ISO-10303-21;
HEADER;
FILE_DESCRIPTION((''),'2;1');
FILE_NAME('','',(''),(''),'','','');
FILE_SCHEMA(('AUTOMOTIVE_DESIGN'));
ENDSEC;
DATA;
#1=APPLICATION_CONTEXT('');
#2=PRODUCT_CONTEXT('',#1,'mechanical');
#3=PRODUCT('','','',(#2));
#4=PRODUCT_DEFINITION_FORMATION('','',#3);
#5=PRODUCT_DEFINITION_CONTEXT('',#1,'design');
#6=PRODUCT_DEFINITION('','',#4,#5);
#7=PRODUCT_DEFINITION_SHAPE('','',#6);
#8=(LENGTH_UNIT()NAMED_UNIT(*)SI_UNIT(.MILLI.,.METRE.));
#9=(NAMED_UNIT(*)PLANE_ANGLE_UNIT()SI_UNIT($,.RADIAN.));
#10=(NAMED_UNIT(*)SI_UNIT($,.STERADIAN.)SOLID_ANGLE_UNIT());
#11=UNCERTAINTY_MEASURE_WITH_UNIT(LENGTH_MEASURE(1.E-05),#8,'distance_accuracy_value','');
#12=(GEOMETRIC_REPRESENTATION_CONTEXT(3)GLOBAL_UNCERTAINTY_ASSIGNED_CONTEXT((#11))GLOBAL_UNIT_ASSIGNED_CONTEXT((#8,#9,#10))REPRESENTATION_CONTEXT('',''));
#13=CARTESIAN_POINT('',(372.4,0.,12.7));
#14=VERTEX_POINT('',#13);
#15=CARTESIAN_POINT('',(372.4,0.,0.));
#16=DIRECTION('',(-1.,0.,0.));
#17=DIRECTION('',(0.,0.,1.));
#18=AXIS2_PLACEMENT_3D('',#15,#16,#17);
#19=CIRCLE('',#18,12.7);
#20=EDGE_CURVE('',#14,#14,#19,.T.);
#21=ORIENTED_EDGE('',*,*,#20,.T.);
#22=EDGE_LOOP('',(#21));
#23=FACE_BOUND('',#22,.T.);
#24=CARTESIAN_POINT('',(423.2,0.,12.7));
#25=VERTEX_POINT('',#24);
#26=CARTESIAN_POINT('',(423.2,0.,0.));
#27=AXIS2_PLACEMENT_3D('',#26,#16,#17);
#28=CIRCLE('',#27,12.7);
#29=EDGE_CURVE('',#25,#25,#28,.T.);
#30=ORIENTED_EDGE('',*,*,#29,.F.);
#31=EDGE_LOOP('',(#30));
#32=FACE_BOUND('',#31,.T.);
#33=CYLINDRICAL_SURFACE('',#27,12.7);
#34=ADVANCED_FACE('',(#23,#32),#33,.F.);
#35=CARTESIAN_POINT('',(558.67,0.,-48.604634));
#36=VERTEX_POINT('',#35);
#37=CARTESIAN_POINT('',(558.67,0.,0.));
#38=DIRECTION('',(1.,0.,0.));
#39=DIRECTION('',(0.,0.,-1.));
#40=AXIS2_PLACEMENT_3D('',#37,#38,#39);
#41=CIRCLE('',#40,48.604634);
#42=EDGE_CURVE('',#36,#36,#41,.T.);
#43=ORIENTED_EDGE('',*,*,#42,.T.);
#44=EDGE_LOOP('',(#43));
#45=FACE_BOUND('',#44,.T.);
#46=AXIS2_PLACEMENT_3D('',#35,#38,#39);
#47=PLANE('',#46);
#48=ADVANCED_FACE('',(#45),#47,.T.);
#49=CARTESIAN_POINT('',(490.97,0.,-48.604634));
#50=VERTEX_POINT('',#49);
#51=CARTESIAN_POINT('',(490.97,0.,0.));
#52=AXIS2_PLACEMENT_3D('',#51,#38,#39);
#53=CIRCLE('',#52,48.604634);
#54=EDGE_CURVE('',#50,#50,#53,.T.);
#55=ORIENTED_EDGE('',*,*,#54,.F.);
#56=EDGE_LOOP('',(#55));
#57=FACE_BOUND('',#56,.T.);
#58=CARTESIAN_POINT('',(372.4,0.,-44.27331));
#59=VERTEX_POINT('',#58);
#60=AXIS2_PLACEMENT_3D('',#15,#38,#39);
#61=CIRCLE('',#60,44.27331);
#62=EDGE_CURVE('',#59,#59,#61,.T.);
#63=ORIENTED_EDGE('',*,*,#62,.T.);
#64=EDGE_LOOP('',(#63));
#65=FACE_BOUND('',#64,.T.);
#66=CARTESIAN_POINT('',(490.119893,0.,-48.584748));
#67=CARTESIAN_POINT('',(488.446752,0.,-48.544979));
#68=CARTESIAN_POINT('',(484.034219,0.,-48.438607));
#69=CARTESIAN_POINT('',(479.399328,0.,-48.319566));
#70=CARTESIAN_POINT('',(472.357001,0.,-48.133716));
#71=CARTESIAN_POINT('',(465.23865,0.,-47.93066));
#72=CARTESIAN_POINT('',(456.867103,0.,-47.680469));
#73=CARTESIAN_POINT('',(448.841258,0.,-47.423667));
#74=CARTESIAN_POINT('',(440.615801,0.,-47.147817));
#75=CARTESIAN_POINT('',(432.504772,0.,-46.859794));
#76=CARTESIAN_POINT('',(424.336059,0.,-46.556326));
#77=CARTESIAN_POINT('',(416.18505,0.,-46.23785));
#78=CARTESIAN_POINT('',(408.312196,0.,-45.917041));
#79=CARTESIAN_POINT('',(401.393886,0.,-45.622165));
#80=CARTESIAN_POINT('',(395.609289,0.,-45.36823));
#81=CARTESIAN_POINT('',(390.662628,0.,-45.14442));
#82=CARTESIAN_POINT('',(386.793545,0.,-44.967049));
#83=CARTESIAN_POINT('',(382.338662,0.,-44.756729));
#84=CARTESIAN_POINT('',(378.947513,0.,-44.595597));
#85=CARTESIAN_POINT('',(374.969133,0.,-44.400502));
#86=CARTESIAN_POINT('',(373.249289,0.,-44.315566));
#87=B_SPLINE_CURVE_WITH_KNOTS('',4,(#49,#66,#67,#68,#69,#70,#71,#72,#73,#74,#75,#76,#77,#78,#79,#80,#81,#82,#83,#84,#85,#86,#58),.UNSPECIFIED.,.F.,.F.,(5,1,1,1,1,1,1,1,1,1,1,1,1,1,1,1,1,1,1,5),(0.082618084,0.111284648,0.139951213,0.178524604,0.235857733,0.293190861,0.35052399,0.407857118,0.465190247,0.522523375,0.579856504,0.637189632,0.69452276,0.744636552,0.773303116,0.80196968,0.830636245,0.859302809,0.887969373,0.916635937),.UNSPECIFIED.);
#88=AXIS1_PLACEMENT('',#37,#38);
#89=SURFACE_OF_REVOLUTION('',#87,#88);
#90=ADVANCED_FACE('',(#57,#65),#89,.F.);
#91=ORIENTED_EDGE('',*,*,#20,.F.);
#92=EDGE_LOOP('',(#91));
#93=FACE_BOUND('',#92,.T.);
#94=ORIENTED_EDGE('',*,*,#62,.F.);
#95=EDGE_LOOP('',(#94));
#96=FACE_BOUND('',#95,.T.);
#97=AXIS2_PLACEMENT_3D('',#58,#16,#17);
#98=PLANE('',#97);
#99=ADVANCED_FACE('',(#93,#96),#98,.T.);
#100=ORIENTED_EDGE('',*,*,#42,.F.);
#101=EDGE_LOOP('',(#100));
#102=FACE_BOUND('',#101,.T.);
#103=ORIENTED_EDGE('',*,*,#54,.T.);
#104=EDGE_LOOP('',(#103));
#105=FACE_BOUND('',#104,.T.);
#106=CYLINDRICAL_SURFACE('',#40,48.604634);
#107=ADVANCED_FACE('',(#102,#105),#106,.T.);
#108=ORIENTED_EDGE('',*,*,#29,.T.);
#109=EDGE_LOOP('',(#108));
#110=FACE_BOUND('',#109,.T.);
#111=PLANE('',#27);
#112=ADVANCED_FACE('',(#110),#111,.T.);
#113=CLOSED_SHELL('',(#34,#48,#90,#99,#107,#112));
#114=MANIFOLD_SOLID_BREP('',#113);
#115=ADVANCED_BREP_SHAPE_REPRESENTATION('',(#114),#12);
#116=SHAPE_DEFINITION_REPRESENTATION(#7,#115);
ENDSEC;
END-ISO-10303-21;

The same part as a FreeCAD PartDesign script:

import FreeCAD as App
import Part
import Sketcher
from FreeCAD import Vector
Q = App.Units.Quantity

doc = App.newDocument("Part")
body = doc.addObject("PartDesign::Body", "Body")

sketch1 = body.newObject("Sketcher::SketchObject", "Sketch")
sketch1.AttachmentSupport = (doc.getObject("XZ_Plane"), [""])
sketch1.MapMode = "FlatFace"
sketch1.addGeometry(Part.LineSegment(Vector(372.4, -44.27331, 0), Vector(372.4, 0, 0)), False)
sketch1.addGeometry(Part.LineSegment(Vector(372.4, 0, 0), Vector(558.67, 0, 0)), False)
sketch1.addGeometry(Part.LineSegment(Vector(558.67, 0, 0), Vector(558.67, -48.604634, 0)), False)
sketch1.addGeometry(Part.LineSegment(Vector(558.67, -48.604634, 0), Vector(490.97, -48.604634, 0)), False)
sketch1.addGeometry(Part.BSplineCurve([Vector(372.4, -44.27331, 0), Vector(373.249289, -44.315566, 0), Vector(374.969133, -44.400502, 0), Vector(378.947513, -44.595597, 0), Vector(382.338662, -44.756729, 0), Vector(386.793545, -44.967049, 0), Vector(390.662628, -45.14442, 0), Vector(395.609289, -45.36823, 0), Vector(401.393886, -45.622165, 0), Vector(408.312196, -45.917041, 0), Vector(416.18505, -46.23785, 0), Vector(424.336059, -46.556326, 0), Vector(432.504772, -46.859794, 0), Vector(440.615801, -47.147817, 0), Vector(448.841258, -47.423667, 0), Vector(456.867103, -47.680469, 0), Vector(465.23865, -47.93066, 0), Vector(472.357001, -48.133716, 0), Vector(479.399328, -48.319566, 0), Vector(484.034219, -48.438607, 0), Vector(488.446752, -48.544979, 0), Vector(490.119893, -48.584748, 0), Vector(490.97, -48.604634, 0)], [5, 1, 1, 1, 1, 1, 1, 1, 1, 1, 1, 1, 1, 1, 1, 1, 1, 1, 1, 5], [0.082618084, 0.111284649, 0.139951213, 0.168617777, 0.197284341, 0.225950906, 0.25461747, 0.304731261, 0.36206439, 0.419397518, 0.476730647, 0.534063775, 0.591396904, 0.648730032, 0.70606316, 0.763396289, 0.820729417, 0.859302809, 0.887969373, 0.916635937], False, 4, [1, 1, 1, 1, 1, 1, 1, 1, 1, 1, 1, 1, 1, 1, 1, 1, 1, 1, 1, 1, 1, 1, 1], False), False)
sketch1.addConstraint(Sketcher.Constraint("Block", 4))
sketch1.addConstraint(Sketcher.Constraint("Coincident", 0, 2, 1, 1))
sketch1.addConstraint(Sketcher.Constraint("Coincident", 1, 2, 2, 1))
sketch1.addConstraint(Sketcher.Constraint("Coincident", 2, 2, 3, 1))
sketch1.addConstraint(Sketcher.Constraint("Coincident", 3, 2, 4, 2))
sketch1.addConstraint(Sketcher.Constraint("Coincident", 4, 1, 0, 1))
sketch1.addConstraint(Sketcher.Constraint("Vertical", 0))
sketch1.addConstraint(Sketcher.Constraint("Horizontal", 1))
sketch1.addConstraint(Sketcher.Constraint("Vertical", 2))
sketch1.addConstraint(Sketcher.Constraint("Horizontal", 3))
sketch1.addConstraint(Sketcher.Constraint("PointOnObject", 0, 2, -1))
sketch1.addConstraint(Sketcher.Constraint("DistanceX", 1, 1, 1, 2, Q("186.27 mm")))
revolution = body.newObject("PartDesign::Revolution", "Revolution")
revolution.Profile = sketch1
revolution.ReferenceAxis = (sketch1, ["H_Axis"])
revolution.Angle = 360

sketch2 = body.newObject("Sketcher::SketchObject", "Sketch001")
sketch2.AttachmentSupport = (doc.getObject("YZ_Plane"), [""])
sketch2.MapMode = "FlatFace"
sketch2.AttachmentOffset = App.Placement(Vector(0, 0, 372.4), App.Rotation())
sketch2.addGeometry(Part.Circle(Vector(0, 0, 0), Vector(0, 0, 1), 13), False)
sketch2.addConstraint(Sketcher.Constraint("Coincident", 0, 3, -1, 1))
sketch2.addConstraint(Sketcher.Constraint("Diameter", 0, Q("1 in")))
pocket1 = body.newObject("PartDesign::Pocket", "Pocket")
pocket1.Profile = sketch2
pocket1.Length = Q("2 in")
pocket1.Reversed = True

doc.recompute()
